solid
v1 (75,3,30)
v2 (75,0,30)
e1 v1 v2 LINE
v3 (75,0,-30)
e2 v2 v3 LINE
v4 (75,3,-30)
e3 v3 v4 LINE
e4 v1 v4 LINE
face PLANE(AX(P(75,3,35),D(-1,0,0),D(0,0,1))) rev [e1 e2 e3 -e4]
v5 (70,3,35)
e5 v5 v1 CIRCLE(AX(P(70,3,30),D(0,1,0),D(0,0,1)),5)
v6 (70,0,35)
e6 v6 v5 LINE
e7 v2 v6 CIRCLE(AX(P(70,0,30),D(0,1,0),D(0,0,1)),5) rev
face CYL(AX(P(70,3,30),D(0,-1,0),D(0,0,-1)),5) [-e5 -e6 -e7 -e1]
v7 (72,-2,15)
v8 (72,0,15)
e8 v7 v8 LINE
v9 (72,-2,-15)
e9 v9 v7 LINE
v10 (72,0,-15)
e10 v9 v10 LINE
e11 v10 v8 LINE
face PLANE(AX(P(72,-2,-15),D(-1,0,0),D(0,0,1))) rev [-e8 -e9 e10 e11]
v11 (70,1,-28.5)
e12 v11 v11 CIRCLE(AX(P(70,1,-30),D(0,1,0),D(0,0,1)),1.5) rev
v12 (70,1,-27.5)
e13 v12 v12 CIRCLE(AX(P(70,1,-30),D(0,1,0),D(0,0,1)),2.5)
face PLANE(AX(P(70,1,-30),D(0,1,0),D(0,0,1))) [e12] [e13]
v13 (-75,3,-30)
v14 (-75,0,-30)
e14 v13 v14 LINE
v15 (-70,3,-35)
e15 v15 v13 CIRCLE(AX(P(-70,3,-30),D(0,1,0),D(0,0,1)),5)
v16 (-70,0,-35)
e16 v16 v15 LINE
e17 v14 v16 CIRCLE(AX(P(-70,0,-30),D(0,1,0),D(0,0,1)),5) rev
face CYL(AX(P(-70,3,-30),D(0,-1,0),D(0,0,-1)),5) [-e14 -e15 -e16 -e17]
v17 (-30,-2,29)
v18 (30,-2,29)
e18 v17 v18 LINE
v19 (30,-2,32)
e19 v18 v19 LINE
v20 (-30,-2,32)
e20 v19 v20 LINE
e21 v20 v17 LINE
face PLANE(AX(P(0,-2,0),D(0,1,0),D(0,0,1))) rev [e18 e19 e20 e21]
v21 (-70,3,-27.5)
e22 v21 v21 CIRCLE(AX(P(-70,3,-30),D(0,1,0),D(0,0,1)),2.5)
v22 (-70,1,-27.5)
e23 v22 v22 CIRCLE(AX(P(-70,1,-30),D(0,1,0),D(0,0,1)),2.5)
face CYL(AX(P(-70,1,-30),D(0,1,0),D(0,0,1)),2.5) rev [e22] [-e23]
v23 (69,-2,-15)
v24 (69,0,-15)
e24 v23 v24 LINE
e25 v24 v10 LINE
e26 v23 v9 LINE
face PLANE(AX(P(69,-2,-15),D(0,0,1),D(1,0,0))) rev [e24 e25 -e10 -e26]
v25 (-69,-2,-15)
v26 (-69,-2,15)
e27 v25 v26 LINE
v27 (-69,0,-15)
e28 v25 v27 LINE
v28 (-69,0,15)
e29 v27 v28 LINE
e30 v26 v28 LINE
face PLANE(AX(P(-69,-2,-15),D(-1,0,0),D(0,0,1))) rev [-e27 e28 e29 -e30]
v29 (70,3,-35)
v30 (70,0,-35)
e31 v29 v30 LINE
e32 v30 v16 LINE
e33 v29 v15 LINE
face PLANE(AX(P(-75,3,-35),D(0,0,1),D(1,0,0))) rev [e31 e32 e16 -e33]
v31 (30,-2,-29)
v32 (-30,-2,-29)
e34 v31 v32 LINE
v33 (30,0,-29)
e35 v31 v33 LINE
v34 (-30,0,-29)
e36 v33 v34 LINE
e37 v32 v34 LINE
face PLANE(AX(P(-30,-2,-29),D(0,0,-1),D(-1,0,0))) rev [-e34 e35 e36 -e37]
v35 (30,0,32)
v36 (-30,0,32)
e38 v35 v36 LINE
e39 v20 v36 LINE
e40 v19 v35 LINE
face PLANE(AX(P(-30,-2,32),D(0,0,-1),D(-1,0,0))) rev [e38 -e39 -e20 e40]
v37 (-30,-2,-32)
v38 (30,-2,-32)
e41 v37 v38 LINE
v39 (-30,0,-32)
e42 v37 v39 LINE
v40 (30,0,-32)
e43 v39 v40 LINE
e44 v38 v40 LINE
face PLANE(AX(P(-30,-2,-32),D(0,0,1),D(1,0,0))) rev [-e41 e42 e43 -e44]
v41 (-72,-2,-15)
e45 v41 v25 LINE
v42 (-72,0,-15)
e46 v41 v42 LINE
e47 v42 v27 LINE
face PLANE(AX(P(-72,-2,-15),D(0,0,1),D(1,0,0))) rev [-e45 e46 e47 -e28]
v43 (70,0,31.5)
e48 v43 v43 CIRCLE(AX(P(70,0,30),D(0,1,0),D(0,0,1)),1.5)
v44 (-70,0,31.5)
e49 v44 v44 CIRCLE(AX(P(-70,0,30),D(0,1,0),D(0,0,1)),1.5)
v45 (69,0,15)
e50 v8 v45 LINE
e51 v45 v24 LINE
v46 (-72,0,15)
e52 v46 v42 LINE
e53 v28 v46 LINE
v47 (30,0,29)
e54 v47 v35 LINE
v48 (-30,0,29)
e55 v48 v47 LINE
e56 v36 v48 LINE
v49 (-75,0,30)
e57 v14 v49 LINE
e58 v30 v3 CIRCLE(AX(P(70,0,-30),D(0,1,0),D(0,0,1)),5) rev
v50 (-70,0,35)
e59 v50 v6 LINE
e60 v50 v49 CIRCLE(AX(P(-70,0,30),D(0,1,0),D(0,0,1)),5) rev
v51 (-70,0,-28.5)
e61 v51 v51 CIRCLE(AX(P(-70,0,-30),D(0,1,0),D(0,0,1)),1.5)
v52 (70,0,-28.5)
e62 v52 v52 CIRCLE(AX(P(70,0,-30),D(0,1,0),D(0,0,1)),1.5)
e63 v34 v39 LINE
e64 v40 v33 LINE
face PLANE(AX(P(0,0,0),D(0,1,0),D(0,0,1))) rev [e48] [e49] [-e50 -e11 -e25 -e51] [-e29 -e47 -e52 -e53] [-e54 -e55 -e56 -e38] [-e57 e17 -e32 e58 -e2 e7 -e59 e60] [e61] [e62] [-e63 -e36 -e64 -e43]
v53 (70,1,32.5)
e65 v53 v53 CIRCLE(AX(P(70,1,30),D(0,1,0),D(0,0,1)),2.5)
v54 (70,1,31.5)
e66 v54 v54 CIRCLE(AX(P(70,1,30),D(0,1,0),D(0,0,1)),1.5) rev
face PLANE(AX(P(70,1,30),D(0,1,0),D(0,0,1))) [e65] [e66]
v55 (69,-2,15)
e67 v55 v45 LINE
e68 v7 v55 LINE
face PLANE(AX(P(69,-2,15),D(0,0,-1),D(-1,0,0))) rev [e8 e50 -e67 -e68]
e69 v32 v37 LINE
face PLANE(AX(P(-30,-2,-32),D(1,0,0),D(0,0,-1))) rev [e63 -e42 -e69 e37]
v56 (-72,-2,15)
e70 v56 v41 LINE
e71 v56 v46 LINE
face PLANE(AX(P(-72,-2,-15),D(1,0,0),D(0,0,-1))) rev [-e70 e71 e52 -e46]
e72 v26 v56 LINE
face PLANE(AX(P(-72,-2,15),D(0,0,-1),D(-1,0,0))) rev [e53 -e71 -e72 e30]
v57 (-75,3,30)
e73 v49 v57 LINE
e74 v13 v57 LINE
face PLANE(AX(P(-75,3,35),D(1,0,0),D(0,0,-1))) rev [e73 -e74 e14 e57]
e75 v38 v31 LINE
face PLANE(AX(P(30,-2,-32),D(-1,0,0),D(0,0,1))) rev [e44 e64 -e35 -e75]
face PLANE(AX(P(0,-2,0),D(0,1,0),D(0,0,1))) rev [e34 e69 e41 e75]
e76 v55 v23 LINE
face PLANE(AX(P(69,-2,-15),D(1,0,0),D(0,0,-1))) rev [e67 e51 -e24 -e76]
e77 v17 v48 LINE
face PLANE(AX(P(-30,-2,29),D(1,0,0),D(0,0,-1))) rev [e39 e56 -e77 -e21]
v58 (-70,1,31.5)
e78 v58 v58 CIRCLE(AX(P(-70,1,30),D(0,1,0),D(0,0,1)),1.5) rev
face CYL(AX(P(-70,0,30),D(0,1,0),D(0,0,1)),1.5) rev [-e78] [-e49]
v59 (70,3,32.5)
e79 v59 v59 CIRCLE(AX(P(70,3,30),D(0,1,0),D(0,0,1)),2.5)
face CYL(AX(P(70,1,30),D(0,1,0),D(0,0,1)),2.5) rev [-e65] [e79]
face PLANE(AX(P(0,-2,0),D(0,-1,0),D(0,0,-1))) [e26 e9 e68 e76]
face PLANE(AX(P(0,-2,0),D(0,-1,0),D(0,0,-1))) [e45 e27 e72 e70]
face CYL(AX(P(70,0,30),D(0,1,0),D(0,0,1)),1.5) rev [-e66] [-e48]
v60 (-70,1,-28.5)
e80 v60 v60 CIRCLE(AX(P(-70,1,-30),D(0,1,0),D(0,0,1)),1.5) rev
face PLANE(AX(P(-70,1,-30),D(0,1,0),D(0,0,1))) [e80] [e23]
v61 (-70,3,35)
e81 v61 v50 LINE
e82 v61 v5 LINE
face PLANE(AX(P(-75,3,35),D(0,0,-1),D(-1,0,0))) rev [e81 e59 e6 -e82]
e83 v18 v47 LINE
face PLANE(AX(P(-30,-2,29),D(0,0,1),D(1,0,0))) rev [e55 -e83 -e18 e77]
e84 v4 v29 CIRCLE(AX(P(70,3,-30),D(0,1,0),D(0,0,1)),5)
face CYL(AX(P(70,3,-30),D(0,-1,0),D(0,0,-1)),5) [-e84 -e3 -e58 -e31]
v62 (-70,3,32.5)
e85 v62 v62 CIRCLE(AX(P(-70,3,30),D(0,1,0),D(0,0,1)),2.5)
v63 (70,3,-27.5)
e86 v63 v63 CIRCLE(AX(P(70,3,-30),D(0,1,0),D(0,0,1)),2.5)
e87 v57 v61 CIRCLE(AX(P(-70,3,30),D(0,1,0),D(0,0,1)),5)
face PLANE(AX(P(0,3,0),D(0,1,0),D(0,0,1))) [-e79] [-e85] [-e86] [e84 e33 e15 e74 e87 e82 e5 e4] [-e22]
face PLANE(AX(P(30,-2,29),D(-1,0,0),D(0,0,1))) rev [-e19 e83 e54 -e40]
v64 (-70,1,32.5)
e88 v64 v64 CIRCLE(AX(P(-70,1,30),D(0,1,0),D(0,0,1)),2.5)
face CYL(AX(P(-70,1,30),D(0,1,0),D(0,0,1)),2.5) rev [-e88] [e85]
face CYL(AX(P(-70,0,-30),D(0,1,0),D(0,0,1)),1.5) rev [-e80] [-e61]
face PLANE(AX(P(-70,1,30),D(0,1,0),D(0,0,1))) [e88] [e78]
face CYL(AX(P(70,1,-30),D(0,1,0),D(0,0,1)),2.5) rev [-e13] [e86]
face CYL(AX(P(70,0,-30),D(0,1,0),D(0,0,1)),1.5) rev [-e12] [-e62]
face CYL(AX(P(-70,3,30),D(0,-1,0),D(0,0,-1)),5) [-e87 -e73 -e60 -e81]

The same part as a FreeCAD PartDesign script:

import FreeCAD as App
import Part
import Sketcher
from FreeCAD import Vector
Q = App.Units.Quantity


def edges_at(feature, points):
    """Names of the edges that pass closest to the given points."""
    edges = feature.Shape.Edges
    near = lambda p: min(range(len(edges)), key=lambda i: edges[i].distToShape(Part.Vertex(*p))[0])
    return sorted({f"Edge{near(p) + 1}" for p in points})


def add_polygon(sketch, points):
    """Adds a closed chain of lines whose ends are joined by coincident constraints."""
    first, n = sketch.GeometryCount, len(points)
    for a, b in zip(points, points[1:] + points[:1]):
        sketch.addGeometry(Part.LineSegment(App.Vector(*a, 0), App.Vector(*b, 0)), False)
    for i in range(n):
        sketch.addConstraint(Sketcher.Constraint("Coincident", first + i, 2, first + (i + 1) % n, 1))

doc = App.newDocument("Part")
body = doc.addObject("PartDesign::Body", "Body")

sketch1 = body.newObject("Sketcher::SketchObject", "Sketch")
sketch1.AttachmentSupport = (doc.getObject("XZ_Plane"), [""])
sketch1.MapMode = "FlatFace"
add_polygon(sketch1, [(-75, -35), (-75, 35), (75, 35), (75, -35)])
sketch1.addConstraint(Sketcher.Constraint("Vertical", 0))
sketch1.addConstraint(Sketcher.Constraint("Horizontal", 1))
sketch1.addConstraint(Sketcher.Constraint("Vertical", 2))
sketch1.addConstraint(Sketcher.Constraint("Horizontal", 3))
sketch1.addConstraint(Sketcher.Constraint("Symmetric", 0, 2, 2, 2, -1, 1))
sketch1.addConstraint(Sketcher.Constraint("DistanceX", 1, 1, 1, 2, Q("150 mm")))
sketch1.addConstraint(Sketcher.Constraint("DistanceY", 0, 1, 0, 2, Q("70 mm")))
pad1 = body.newObject("PartDesign::Pad", "Pad")
pad1.Profile = sketch1
pad1.Length = 3
pad1.Reversed = True
doc.recompute()

fillet = body.newObject("PartDesign::Fillet", "Fillet")
fillet.Base = (pad1, edges_at(pad1, [
    (75, 1.5, -35),
    (75, 1.5, 35),
    (-75, 1.5, 35),
    (-75, 1.5, -35),
]))
fillet.Radius = 5

sketch2 = body.newObject("Sketcher::SketchObject", "Sketch001")
sketch2.AttachmentSupport = (doc.getObject("XZ_Plane"), [""])
sketch2.MapMode = "FlatFace"
sketch2.AttachmentOffset = App.Placement(Vector(0, 0, -3), App.Rotation())
sketch2.addGeometry(Part.Circle(Vector(-70, -30, 0), Vector(0, 0, 1), 1.5), False)
sketch2.addGeometry(Part.Circle(Vector(70, -30, 0), Vector(0, 0, 1), 1.5), False)
sketch2.addGeometry(Part.Circle(Vector(70, 30, 0), Vector(0, 0, 1), 1.5), False)
sketch2.addGeometry(Part.Circle(Vector(-70, 30, 0), Vector(0, 0, 1), 1.5), False)
sketch2.addConstraint(Sketcher.Constraint("Equal", 0, 1))
sketch2.addConstraint(Sketcher.Constraint("Equal", 1, 2))
sketch2.addConstraint(Sketcher.Constraint("Equal", 2, 3))
sketch2.addConstraint(Sketcher.Constraint("Symmetric", 0, 3, 2, 3, -1, 1))
sketch2.addConstraint(Sketcher.Constraint("Symmetric", 1, 3, 3, 3, -1, 1))
sketch2.addConstraint(Sketcher.Constraint("Symmetric", 0, 3, 1, 3, -2))
sketch2.addConstraint(Sketcher.Constraint("Diameter", 0, Q("3 mm")))
sketch2.addConstraint(Sketcher.Constraint("DistanceX", 0, 3, -1, 1, Q("70 mm")))
sketch2.addConstraint(Sketcher.Constraint("DistanceY", 0, 3, -1, 1, Q("30 mm")))
pocket1 = body.newObject("PartDesign::Pocket", "Pocket")
pocket1.Profile = sketch2
pocket1.Length = 3
pocket1.Reversed = True

sketch3 = body.newObject("Sketcher::SketchObject", "Sketch002")
sketch3.AttachmentSupport = (doc.getObject("XZ_Plane"), [""])
sketch3.MapMode = "FlatFace"
sketch3.AttachmentOffset = App.Placement(Vector(0, 0, -3), App.Rotation())
sketch3.addGeometry(Part.Circle(Vector(-70, -30, 0), Vector(0, 0, 1), 2.5), False)
sketch3.addGeometry(Part.Circle(Vector(70, -30, 0), Vector(0, 0, 1), 2.5), False)
sketch3.addGeometry(Part.Circle(Vector(70, 30, 0), Vector(0, 0, 1), 2.5), False)
sketch3.addGeometry(Part.Circle(Vector(-70, 30, 0), Vector(0, 0, 1), 2.5), False)
sketch3.addConstraint(Sketcher.Constraint("Equal", 0, 1))
sketch3.addConstraint(Sketcher.Constraint("Equal", 1, 2))
sketch3.addConstraint(Sketcher.Constraint("Equal", 2, 3))
sketch3.addConstraint(Sketcher.Constraint("Symmetric", 0, 3, 2, 3, -1, 1))
sketch3.addConstraint(Sketcher.Constraint("Symmetric", 1, 3, 3, 3, -1, 1))
sketch3.addConstraint(Sketcher.Constraint("Symmetric", 0, 3, 1, 3, -2))
sketch3.addConstraint(Sketcher.Constraint("Diameter", 0, Q("5 mm")))
sketch3.addConstraint(Sketcher.Constraint("DistanceX", 0, 3, -1, 1, Q("70 mm")))
sketch3.addConstraint(Sketcher.Constraint("DistanceY", 0, 3, -1, 1, Q("30 mm")))
pocket2 = body.newObject("PartDesign::Pocket", "Pocket001")
pocket2.Profile = sketch3
pocket2.Length = 2
pocket2.Reversed = True

sketch4 = body.newObject("Sketcher::SketchObject", "Sketch003")
sketch4.AttachmentSupport = (doc.getObject("XZ_Plane"), [""])
sketch4.MapMode = "FlatFace"
add_polygon(sketch4, [(-72, 15), (-72, -15), (-69, -15), (-69, 15)])
add_polygon(sketch4, [(-30, -29), (-30, -32), (30, -32), (30, -29)])
add_polygon(sketch4, [(69, 15), (69, -15), (72, -15), (72, 15)])
add_polygon(sketch4, [(-30, 32), (-30, 29), (30, 29), (30, 32)])
sketch4.addConstraint(Sketcher.Constraint("Vertical", 0))
sketch4.addConstraint(Sketcher.Constraint("Horizontal", 1))
sketch4.addConstraint(Sketcher.Constraint("Vertical", 2))
sketch4.addConstraint(Sketcher.Constraint("Horizontal", 3))
sketch4.addConstraint(Sketcher.Constraint("Vertical", 4))
sketch4.addConstraint(Sketcher.Constraint("Horizontal", 5))
sketch4.addConstraint(Sketcher.Constraint("Vertical", 6))
sketch4.addConstraint(Sketcher.Constraint("Horizontal", 7))
sketch4.addConstraint(Sketcher.Constraint("Vertical", 8))
sketch4.addConstraint(Sketcher.Constraint("Horizontal", 9))
sketch4.addConstraint(Sketcher.Constraint("Vertical", 10))
sketch4.addConstraint(Sketcher.Constraint("Horizontal", 11))
sketch4.addConstraint(Sketcher.Constraint("Vertical", 12))
sketch4.addConstraint(Sketcher.Constraint("Horizontal", 13))
sketch4.addConstraint(Sketcher.Constraint("Vertical", 14))
sketch4.addConstraint(Sketcher.Constraint("Horizontal", 15))
sketch4.addConstraint(Sketcher.Constraint("Symmetric", 2, 2, 8, 2, -1, 1))
sketch4.addConstraint(Sketcher.Constraint("Symmetric", 0, 2, 10, 2, -1, 1))
sketch4.addConstraint(Sketcher.Constraint("Symmetric", 6, 2, 12, 2, -1, 1))
sketch4.addConstraint(Sketcher.Constraint("Symmetric", 4, 2, 14, 2, -1, 1))
sketch4.addConstraint(Sketcher.Constraint("Horizontal", 1, 2, 8, 2))
sketch4.addConstraint(Sketcher.Constraint("Vertical", 7, 2, 12, 2))
sketch4.addConstraint(Sketcher.Constraint("Equal", 11, 4))
sketch4.addConstraint(Sketcher.Constraint("DistanceX", 1, 1, 1, 2, Q("3 mm")))
sketch4.addConstraint(Sketcher.Constraint("DistanceX", 5, 1, 5, 2, Q("60 mm")))
sketch4.addConstraint(Sketcher.Constraint("DistanceY", 0, 2, 0, 1, Q("30 mm")))
sketch4.addConstraint(Sketcher.Constraint("DistanceX", 0, 2, -1, 1, Q("72 mm")))
sketch4.addConstraint(Sketcher.Constraint("DistanceY", 4, 2, -1, 1, Q("32 mm")))
pad2 = body.newObject("PartDesign::Pad", "Pad001")
pad2.Profile = sketch4
pad2.Length = 2

doc.recompute()
